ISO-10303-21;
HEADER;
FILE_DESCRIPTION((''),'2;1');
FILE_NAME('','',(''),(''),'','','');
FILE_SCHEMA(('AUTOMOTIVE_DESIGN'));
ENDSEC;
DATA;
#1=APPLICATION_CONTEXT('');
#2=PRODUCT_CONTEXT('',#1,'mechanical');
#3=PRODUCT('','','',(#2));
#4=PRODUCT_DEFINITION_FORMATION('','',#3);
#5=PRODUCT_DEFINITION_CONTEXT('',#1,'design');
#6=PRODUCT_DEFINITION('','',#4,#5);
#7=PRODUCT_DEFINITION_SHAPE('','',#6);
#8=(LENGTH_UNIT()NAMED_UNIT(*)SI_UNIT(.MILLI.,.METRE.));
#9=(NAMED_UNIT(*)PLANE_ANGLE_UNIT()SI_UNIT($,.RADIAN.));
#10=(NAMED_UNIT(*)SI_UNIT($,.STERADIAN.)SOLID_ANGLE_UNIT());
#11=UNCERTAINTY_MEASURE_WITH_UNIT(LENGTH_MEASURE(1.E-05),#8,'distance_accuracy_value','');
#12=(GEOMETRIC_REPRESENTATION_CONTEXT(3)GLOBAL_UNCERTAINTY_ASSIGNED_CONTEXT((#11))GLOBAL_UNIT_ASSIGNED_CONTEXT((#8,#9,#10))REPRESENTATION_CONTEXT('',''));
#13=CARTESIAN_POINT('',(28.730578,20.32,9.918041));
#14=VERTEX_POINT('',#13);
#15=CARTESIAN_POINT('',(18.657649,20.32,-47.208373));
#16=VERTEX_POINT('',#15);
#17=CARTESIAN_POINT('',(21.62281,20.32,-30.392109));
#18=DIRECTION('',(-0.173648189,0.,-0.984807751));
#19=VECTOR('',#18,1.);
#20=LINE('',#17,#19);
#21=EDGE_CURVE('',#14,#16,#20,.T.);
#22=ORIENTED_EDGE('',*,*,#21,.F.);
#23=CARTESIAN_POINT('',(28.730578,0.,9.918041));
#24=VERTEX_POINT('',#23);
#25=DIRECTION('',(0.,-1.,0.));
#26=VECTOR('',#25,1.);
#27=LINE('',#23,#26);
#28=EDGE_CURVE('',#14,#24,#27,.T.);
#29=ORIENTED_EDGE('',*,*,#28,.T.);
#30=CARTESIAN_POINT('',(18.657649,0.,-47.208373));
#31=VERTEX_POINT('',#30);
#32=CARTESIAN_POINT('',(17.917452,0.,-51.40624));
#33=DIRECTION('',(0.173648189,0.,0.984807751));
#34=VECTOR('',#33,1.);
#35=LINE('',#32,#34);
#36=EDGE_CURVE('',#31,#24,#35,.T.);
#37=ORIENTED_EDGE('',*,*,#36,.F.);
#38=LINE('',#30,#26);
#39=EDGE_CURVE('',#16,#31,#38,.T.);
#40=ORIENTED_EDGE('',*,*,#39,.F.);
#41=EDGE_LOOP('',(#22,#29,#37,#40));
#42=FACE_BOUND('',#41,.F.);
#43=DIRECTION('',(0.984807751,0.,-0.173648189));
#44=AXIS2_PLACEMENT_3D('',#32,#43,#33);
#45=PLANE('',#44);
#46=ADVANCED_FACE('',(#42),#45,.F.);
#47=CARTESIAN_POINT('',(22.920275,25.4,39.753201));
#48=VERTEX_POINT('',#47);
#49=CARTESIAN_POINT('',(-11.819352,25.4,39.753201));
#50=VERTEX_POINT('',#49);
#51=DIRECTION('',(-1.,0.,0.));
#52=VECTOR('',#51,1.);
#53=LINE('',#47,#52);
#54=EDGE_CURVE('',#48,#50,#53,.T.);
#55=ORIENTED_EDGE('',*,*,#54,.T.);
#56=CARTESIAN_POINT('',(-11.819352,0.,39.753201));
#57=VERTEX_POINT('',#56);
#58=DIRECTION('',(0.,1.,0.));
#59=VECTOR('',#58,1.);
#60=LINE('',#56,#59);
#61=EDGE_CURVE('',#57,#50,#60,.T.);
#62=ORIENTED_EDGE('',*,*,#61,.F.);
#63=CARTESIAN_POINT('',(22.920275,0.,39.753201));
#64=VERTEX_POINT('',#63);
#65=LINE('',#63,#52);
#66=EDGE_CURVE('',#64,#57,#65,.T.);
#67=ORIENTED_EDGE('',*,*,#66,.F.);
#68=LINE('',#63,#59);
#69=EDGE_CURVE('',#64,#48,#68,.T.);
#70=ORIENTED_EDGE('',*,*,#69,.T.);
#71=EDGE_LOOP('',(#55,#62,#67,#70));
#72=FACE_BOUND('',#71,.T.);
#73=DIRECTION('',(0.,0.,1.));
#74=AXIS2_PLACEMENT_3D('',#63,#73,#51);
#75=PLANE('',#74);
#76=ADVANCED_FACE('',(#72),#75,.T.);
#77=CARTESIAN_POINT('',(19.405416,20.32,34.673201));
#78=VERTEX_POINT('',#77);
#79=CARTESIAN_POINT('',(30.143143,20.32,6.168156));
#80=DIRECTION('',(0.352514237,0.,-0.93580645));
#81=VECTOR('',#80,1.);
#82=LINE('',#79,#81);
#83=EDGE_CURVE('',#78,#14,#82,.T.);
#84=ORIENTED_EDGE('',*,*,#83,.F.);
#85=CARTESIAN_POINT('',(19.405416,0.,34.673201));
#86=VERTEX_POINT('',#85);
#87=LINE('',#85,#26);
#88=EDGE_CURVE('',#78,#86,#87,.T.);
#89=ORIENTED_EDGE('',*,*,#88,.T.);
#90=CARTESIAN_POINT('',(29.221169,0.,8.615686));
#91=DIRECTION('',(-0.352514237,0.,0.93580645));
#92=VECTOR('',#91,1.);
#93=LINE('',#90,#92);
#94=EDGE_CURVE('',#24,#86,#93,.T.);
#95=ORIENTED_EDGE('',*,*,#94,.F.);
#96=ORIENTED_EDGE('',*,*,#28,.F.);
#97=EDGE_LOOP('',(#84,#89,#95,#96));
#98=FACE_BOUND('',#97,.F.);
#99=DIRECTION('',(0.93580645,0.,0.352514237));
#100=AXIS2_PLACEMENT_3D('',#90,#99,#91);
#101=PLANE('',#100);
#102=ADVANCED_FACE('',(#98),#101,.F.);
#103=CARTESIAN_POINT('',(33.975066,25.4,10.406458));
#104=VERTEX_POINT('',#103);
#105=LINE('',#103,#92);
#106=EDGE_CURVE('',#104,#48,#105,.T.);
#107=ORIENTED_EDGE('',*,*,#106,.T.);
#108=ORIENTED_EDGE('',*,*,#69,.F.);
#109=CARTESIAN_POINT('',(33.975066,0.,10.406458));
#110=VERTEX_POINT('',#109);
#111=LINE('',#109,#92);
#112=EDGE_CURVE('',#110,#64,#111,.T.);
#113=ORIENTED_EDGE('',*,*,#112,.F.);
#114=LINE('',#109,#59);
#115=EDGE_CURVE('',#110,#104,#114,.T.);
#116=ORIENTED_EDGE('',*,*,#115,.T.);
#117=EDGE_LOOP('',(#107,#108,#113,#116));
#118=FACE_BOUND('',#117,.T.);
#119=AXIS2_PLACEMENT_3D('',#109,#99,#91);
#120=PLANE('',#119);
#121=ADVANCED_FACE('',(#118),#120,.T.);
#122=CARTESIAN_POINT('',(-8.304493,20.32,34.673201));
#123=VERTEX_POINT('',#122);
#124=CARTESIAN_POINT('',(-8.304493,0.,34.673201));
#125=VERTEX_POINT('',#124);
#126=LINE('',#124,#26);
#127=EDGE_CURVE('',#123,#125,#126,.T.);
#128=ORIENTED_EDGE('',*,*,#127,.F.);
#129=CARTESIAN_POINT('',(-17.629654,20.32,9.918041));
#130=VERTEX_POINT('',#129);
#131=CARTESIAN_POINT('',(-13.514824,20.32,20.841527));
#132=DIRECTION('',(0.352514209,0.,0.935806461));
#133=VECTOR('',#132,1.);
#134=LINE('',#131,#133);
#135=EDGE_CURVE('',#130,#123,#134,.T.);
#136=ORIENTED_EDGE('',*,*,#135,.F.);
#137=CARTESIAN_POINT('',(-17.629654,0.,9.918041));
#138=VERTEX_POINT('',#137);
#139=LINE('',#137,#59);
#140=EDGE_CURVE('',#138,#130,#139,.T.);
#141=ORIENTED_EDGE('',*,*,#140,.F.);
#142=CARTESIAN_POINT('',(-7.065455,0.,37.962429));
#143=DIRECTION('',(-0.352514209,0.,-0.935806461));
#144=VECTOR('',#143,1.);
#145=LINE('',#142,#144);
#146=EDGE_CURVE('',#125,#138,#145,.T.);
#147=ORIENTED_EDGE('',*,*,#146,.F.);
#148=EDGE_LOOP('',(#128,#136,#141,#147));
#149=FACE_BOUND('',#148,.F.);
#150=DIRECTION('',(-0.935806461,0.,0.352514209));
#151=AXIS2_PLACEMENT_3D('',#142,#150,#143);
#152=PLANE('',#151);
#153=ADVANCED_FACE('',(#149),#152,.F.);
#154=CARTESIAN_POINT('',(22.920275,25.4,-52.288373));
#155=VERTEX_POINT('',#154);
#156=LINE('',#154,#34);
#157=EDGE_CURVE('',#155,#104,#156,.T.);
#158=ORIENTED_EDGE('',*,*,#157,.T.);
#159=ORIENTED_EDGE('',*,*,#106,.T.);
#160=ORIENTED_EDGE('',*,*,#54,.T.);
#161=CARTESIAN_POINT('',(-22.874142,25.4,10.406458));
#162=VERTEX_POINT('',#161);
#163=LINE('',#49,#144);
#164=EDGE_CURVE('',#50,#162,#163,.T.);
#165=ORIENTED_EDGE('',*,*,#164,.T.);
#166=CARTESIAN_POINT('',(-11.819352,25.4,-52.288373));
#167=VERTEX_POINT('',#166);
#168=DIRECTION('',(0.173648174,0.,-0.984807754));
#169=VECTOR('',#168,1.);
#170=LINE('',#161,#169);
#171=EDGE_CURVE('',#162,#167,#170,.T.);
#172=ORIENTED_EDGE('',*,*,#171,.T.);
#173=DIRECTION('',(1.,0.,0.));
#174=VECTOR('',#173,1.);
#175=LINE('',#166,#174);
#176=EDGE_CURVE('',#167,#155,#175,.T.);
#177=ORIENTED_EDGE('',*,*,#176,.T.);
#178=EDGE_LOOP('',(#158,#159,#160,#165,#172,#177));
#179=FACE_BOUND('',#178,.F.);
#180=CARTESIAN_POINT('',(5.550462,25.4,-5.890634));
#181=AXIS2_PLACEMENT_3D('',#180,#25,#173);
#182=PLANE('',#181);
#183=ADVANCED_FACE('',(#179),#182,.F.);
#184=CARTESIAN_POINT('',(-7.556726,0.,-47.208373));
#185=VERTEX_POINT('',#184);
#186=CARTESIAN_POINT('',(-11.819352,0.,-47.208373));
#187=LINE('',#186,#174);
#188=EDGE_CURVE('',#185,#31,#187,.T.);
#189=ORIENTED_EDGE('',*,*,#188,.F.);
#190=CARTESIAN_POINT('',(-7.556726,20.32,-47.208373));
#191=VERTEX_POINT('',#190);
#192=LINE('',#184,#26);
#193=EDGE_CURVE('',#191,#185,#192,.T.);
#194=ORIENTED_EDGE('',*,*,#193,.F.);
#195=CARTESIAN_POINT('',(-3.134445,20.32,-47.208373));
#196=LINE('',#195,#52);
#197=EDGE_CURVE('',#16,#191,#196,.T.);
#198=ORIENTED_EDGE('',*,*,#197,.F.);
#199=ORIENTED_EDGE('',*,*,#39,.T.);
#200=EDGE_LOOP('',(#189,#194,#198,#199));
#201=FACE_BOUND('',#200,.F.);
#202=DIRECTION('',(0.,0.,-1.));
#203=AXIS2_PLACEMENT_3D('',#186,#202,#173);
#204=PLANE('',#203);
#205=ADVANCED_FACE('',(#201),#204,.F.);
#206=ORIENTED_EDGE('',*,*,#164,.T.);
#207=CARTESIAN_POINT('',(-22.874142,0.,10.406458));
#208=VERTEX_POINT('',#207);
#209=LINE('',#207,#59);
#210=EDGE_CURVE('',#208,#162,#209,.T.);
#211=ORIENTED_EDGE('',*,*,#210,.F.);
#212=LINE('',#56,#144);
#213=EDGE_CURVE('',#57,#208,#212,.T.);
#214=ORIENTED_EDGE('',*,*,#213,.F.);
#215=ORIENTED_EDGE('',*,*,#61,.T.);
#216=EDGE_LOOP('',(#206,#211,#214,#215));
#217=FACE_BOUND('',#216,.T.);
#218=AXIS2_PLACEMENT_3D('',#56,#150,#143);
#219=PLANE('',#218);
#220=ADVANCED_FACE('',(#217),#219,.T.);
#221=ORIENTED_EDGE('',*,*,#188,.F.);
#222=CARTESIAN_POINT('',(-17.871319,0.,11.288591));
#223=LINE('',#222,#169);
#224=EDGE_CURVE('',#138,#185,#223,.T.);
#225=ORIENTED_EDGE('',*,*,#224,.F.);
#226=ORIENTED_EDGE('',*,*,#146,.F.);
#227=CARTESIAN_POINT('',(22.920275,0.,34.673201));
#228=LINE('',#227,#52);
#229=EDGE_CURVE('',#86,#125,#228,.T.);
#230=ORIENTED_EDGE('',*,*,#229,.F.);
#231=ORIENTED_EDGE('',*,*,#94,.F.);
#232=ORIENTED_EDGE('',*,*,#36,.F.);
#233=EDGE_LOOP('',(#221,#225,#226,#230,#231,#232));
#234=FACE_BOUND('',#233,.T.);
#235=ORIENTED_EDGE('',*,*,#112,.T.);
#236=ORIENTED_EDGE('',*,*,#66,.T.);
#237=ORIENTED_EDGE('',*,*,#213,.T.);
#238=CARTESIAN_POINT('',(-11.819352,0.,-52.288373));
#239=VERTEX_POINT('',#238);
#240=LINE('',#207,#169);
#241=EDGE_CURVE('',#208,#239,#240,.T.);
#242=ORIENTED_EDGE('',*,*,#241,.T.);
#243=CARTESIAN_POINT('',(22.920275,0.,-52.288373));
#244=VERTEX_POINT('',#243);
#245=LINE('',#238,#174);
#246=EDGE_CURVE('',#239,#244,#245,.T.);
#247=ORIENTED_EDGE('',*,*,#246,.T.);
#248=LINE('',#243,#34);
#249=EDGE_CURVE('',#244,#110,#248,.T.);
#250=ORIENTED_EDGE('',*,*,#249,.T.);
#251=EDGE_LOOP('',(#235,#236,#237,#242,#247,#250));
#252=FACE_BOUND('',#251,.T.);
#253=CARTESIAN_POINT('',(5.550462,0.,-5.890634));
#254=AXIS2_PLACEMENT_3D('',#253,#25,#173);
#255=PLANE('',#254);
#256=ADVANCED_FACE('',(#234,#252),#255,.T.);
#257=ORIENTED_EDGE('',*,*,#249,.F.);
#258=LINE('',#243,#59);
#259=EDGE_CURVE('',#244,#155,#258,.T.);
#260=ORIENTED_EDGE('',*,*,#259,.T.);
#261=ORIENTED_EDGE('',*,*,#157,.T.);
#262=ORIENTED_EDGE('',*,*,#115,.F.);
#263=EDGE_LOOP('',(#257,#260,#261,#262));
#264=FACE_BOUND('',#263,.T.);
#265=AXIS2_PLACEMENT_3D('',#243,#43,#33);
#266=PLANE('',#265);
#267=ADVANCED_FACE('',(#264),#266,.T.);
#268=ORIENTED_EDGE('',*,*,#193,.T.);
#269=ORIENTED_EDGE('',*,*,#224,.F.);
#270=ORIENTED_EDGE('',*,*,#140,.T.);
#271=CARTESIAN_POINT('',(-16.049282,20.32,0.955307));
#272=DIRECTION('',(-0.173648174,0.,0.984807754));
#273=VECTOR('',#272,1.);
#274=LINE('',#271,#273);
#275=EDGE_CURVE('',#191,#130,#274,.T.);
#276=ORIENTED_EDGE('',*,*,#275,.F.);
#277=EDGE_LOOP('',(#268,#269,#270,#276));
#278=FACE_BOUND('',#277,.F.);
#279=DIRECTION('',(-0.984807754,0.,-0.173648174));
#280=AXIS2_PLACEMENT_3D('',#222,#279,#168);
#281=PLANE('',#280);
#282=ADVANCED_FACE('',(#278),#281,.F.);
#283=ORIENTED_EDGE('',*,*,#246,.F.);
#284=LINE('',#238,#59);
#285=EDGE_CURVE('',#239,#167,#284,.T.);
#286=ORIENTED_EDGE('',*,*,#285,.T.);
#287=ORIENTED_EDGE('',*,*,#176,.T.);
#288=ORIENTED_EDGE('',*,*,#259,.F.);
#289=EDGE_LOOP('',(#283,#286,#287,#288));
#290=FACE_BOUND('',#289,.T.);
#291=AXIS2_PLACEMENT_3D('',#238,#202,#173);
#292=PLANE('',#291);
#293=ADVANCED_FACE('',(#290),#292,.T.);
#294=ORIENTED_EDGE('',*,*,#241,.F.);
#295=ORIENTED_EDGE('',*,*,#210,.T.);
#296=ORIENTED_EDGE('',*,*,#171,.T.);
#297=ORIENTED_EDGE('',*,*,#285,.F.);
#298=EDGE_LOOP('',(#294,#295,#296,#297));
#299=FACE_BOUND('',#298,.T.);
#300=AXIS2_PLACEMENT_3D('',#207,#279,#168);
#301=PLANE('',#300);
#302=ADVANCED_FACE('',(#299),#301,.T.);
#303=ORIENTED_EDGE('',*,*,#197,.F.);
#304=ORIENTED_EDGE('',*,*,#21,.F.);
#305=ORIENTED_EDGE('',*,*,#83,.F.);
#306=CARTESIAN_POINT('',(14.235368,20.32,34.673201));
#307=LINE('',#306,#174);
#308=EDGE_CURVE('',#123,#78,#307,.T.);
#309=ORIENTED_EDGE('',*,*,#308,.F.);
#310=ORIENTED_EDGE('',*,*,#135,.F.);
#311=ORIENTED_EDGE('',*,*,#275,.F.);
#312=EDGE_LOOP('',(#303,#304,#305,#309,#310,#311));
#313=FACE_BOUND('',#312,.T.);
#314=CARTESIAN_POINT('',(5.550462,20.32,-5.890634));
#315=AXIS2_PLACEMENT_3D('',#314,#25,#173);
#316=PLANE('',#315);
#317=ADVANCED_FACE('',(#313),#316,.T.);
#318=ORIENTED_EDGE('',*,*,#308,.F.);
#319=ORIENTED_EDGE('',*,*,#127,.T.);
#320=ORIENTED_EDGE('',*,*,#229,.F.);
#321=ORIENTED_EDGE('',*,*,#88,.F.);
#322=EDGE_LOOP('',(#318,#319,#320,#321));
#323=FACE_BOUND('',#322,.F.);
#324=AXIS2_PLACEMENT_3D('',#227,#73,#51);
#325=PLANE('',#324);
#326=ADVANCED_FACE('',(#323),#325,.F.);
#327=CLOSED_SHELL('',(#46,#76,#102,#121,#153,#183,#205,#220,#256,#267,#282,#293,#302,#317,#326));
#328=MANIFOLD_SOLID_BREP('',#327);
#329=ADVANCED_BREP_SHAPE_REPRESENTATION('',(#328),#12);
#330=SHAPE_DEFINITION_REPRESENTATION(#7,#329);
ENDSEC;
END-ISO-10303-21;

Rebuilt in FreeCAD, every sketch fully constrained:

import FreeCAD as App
import Part
import Sketcher
Q = App.Units.Quantity


def faces_at(feature, points):
    """Names of the faces that lie closest to the given points."""
    faces = feature.Shape.Faces
    near = lambda p: min(range(len(faces)), key=lambda i: faces[i].distToShape(Part.Vertex(*p))[0])
    return sorted({f"Face{near(p) + 1}" for p in points})

doc = App.newDocument("Part")
body = doc.addObject("PartDesign::Body", "Body")

# Sketch on XZ plane
sketch1 = body.newObject("Sketcher::SketchObject", "Sketch")
sketch1.AttachmentSupport = (doc.getObject("XZ_Plane"), [""])
sketch1.MapMode = "FlatFace"
sketch1.addGeometry([
    Part.LineSegment(App.Vector(-23, 10, 0), App.Vector(-12, -52, 0)),  # 0
    Part.LineSegment(App.Vector(-12, -52, 0), App.Vector(23, -52, 0)),  # 1
    Part.LineSegment(App.Vector(23, -52, 0), App.Vector(34, 10, 0)),  # 2
    Part.LineSegment(App.Vector(34, 10, 0), App.Vector(23, 40, 0)),  # 3
    Part.LineSegment(App.Vector(23, 40, 0), App.Vector(-12, 40, 0)),  # 4
    Part.LineSegment(App.Vector(-12, 40, 0), App.Vector(-23, 10, 0)),  # 5
], False)
sketch1.addConstraint([
    Sketcher.Constraint("Coincident", 0, 2, 1, 1),
    Sketcher.Constraint("Coincident", 1, 2, 2, 1),
    Sketcher.Constraint("Coincident", 2, 2, 3, 1),
    Sketcher.Constraint("Coincident", 3, 2, 4, 1),
    Sketcher.Constraint("Coincident", 4, 2, 5, 1),
    Sketcher.Constraint("Coincident", 5, 2, 0, 1),
    Sketcher.Constraint("Horizontal", 1),
    Sketcher.Constraint("Horizontal", 4),
    Sketcher.Constraint("Horizontal", 2, 2, 5, 2),
    Sketcher.Constraint("Vertical", 1, 2, 3, 2),
    Sketcher.Constraint("Vertical", 0, 2, 4, 2),
    Sketcher.Constraint("Equal", 0, 2),
    Sketcher.Constraint("Angle", 0, Q("-80 deg")),
    Sketcher.Constraint("Distance", 0, Q("63.662 mm")),
    Sketcher.Constraint("DistanceY", -1, 1, 3, 2, Q("39.753201 mm")),
    Sketcher.Constraint("DistanceX", 1, 1, 1, 2, Q("34.739627 mm")),
    Sketcher.Constraint("DistanceY", -1, 1, 2, 2, Q("10.406458 mm")),
    Sketcher.Constraint("DistanceX", 5, 2, -1, 1, Q("22.874142 mm")),
])
pad1 = body.newObject("PartDesign::Pad", "Pad")
pad1.Profile = sketch1
pad1.Length = Q("1 in")
pad1.Reversed = True
doc.recompute()

thickness = body.newObject("PartDesign::Thickness", "Thickness")
thickness.Base = (pad1, faces_at(pad1, [(5.55, 0, -6.268)]))
thickness.Value = Q("0.2 in")
thickness.Reversed = True
thickness.Join = "Arc"

doc.recompute()
